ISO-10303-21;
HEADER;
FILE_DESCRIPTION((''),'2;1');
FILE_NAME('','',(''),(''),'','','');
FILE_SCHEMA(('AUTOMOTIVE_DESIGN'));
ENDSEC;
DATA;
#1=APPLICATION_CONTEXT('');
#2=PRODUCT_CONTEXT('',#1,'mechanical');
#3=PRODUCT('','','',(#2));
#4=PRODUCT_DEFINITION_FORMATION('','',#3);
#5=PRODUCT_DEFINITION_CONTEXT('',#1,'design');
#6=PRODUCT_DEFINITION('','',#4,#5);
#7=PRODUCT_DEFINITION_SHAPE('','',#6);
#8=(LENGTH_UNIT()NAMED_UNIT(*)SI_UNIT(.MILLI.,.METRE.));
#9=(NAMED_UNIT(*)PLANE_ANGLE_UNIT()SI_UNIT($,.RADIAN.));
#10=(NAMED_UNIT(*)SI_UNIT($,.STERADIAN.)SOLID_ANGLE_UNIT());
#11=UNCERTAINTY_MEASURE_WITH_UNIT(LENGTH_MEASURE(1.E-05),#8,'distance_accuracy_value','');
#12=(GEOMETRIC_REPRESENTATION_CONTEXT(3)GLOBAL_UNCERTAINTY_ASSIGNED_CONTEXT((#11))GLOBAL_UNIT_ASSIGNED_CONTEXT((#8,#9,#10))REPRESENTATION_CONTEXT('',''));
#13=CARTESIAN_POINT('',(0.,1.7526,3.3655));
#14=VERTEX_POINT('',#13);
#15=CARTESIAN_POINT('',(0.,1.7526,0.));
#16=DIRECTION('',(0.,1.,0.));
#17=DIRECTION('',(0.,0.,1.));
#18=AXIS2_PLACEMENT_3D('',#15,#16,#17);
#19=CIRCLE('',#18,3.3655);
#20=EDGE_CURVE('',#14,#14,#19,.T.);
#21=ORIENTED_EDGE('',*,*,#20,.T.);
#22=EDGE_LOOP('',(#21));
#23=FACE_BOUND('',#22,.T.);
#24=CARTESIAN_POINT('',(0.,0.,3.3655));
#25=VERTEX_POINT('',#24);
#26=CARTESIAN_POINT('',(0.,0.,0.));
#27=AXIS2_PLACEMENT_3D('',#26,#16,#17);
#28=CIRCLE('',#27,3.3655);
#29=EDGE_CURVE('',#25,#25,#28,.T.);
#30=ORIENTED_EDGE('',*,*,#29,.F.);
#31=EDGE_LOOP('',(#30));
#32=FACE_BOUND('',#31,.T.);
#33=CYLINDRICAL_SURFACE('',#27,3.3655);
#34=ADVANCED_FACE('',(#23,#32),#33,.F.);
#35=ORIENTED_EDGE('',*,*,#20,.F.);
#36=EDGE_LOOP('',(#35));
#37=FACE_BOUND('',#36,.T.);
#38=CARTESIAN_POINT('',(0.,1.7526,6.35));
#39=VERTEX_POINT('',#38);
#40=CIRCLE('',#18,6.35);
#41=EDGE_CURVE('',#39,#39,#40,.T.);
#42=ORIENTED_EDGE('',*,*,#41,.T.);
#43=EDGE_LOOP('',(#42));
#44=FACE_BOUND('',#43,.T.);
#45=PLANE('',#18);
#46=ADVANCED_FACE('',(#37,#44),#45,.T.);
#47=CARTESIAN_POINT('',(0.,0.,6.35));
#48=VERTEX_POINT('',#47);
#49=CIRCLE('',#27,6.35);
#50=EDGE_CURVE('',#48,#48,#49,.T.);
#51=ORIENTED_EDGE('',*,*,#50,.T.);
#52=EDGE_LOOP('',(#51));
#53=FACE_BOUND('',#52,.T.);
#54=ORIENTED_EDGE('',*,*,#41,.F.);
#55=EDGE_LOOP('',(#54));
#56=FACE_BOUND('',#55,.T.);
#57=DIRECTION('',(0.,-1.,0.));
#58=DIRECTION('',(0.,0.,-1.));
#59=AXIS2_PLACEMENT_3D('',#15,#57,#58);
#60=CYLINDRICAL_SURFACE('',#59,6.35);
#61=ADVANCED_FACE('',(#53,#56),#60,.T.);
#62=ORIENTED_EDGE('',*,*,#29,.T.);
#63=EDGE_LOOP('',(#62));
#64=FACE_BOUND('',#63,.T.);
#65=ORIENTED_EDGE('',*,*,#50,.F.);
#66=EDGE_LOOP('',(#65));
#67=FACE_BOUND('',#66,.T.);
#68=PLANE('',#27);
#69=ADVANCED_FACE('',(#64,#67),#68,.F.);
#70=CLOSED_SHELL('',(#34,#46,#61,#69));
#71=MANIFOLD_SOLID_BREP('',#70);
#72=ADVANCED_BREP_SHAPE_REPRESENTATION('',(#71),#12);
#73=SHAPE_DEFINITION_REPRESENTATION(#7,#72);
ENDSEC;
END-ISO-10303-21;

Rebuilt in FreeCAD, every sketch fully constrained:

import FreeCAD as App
import Part
import Sketcher

V = App.Vector
Q = App.Units.Quantity

doc = App.newDocument("Part")
params = doc.addObject("Spreadsheet::Sheet", "Params")
for row, (alias, value) in enumerate([
    ("sketch1_diameter", "0.5 in"),
    ("pad1_length", "0.069 in"),
    ("sketch2_diameter", "0.265 in"),
], start=1):
    params.set(f"A{row}", alias)
    params.set(f"B{row}", "=" + value)
    params.setAlias(f"B{row}", alias)

body = doc.addObject("PartDesign::Body", "Body")

# Sketch on XZ plane
sketch1 = body.newObject("Sketcher::SketchObject", "Sketch")
sketch1.AttachmentSupport = (doc.getObject("XZ_Plane"), [""])
sketch1.MapMode = "FlatFace"
sketch1.addGeometry(Part.Circle(V(0, 0, 0), V(0, 0, 1), 6.35), False)
sketch1.addConstraint([
    Sketcher.Constraint("Coincident", 0, 3, -1, 1),
    Sketcher.Constraint("Diameter", 0, Q("0.5 in")),
])
sketch1.setExpression("Constraints[1]", "Params.sketch1_diameter")
pad1 = body.newObject("PartDesign::Pad", "Pad")
pad1.Profile = sketch1
pad1.setExpression("Length", "Params.pad1_length")
pad1.Reversed = True

# Sketch on XZ plane
sketch2 = body.newObject("Sketcher::SketchObject", "Sketch001")
sketch2.AttachmentSupport = (doc.getObject("XZ_Plane"), [""])
sketch2.MapMode = "FlatFace"
sketch2.AttachmentOffset = App.Placement(V(0, 0, -0.069 * 25.4), App.Rotation())
sketch2.addGeometry(Part.Circle(V(0, 0, 0), V(0, 0, 1), 3.3655), False)
sketch2.addConstraint([
    Sketcher.Constraint("Coincident", 0, 3, -1, 1),
    Sketcher.Constraint("Diameter", 0, Q("0.265 in")),
])
sketch2.setExpression("Constraints[1]", "Params.sketch2_diameter")
pocket1 = body.newObject("PartDesign::Pocket", "Pocket")
pocket1.Profile = sketch2
pocket1.Type = "ThroughAll"
pocket1.Reversed = True

doc.recompute()
